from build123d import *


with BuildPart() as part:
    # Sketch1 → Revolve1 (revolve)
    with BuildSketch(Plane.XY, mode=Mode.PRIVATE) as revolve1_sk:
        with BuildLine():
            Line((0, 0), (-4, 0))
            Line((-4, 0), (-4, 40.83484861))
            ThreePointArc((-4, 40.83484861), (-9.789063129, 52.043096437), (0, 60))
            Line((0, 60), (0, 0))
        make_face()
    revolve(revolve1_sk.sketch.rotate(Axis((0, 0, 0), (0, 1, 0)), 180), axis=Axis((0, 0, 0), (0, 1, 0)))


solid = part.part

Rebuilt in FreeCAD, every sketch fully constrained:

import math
import FreeCAD as App
import Part
import Sketcher
Q = App.Units.Quantity

doc = App.newDocument("Part")
body = doc.addObject("PartDesign::Body", "Body")

# Sketch on XY plane
sketch1 = doc.addObject("Sketcher::SketchObject", "Sketch")
body.addObject(sketch1)
sketch1.AttachmentSupport = (doc.XY_Plane, [""])
sketch1.MapMode = "FlatFace"
sketch1.addGeometry([
    Part.LineSegment(App.Vector(-4, 0, 0), App.Vector(0, 0, 0)),
    Part.LineSegment(App.Vector(0, 0, 0), App.Vector(0, 60, 0)),
    Part.ArcOfCircle(Part.Circle(App.Vector(0, 50, 0), App.Vector(0, 0, 1), 10), math.radians(90), math.radians(246)),
    Part.LineSegment(App.Vector(-4, 40.8, 0), App.Vector(-4, 0, 0)),
], False)
sketch1.addConstraint([
    Sketcher.Constraint("Coincident", 0, 2, 1, 1),
    Sketcher.Constraint("Coincident", 1, 2, 2, 1),
    Sketcher.Constraint("Coincident", 2, 2, 3, 1),
    Sketcher.Constraint("Coincident", 3, 2, 0, 1),
    Sketcher.Constraint("Horizontal", 0),
    Sketcher.Constraint("Vertical", 1),
    Sketcher.Constraint("Vertical", 3),
    Sketcher.Constraint("Coincident", 0, 2, -1, 1),
    Sketcher.Constraint("PointOnObject", 2, 3, -2),
    Sketcher.Constraint("Radius", 2, Q("10 mm")),
    Sketcher.Constraint("DistanceX", 0, 1, 0, 2, Q("4 mm")),
    Sketcher.Constraint("DistanceY", 1, 1, 1, 2, Q("60 mm")),
])
revolution = doc.addObject("PartDesign::Revolution", "Revolution")
body.addObject(revolution)
revolution.Profile = sketch1
revolution.ReferenceAxis = (sketch1, ["V_Axis"])
revolution.Angle = 360

doc.recompute()
